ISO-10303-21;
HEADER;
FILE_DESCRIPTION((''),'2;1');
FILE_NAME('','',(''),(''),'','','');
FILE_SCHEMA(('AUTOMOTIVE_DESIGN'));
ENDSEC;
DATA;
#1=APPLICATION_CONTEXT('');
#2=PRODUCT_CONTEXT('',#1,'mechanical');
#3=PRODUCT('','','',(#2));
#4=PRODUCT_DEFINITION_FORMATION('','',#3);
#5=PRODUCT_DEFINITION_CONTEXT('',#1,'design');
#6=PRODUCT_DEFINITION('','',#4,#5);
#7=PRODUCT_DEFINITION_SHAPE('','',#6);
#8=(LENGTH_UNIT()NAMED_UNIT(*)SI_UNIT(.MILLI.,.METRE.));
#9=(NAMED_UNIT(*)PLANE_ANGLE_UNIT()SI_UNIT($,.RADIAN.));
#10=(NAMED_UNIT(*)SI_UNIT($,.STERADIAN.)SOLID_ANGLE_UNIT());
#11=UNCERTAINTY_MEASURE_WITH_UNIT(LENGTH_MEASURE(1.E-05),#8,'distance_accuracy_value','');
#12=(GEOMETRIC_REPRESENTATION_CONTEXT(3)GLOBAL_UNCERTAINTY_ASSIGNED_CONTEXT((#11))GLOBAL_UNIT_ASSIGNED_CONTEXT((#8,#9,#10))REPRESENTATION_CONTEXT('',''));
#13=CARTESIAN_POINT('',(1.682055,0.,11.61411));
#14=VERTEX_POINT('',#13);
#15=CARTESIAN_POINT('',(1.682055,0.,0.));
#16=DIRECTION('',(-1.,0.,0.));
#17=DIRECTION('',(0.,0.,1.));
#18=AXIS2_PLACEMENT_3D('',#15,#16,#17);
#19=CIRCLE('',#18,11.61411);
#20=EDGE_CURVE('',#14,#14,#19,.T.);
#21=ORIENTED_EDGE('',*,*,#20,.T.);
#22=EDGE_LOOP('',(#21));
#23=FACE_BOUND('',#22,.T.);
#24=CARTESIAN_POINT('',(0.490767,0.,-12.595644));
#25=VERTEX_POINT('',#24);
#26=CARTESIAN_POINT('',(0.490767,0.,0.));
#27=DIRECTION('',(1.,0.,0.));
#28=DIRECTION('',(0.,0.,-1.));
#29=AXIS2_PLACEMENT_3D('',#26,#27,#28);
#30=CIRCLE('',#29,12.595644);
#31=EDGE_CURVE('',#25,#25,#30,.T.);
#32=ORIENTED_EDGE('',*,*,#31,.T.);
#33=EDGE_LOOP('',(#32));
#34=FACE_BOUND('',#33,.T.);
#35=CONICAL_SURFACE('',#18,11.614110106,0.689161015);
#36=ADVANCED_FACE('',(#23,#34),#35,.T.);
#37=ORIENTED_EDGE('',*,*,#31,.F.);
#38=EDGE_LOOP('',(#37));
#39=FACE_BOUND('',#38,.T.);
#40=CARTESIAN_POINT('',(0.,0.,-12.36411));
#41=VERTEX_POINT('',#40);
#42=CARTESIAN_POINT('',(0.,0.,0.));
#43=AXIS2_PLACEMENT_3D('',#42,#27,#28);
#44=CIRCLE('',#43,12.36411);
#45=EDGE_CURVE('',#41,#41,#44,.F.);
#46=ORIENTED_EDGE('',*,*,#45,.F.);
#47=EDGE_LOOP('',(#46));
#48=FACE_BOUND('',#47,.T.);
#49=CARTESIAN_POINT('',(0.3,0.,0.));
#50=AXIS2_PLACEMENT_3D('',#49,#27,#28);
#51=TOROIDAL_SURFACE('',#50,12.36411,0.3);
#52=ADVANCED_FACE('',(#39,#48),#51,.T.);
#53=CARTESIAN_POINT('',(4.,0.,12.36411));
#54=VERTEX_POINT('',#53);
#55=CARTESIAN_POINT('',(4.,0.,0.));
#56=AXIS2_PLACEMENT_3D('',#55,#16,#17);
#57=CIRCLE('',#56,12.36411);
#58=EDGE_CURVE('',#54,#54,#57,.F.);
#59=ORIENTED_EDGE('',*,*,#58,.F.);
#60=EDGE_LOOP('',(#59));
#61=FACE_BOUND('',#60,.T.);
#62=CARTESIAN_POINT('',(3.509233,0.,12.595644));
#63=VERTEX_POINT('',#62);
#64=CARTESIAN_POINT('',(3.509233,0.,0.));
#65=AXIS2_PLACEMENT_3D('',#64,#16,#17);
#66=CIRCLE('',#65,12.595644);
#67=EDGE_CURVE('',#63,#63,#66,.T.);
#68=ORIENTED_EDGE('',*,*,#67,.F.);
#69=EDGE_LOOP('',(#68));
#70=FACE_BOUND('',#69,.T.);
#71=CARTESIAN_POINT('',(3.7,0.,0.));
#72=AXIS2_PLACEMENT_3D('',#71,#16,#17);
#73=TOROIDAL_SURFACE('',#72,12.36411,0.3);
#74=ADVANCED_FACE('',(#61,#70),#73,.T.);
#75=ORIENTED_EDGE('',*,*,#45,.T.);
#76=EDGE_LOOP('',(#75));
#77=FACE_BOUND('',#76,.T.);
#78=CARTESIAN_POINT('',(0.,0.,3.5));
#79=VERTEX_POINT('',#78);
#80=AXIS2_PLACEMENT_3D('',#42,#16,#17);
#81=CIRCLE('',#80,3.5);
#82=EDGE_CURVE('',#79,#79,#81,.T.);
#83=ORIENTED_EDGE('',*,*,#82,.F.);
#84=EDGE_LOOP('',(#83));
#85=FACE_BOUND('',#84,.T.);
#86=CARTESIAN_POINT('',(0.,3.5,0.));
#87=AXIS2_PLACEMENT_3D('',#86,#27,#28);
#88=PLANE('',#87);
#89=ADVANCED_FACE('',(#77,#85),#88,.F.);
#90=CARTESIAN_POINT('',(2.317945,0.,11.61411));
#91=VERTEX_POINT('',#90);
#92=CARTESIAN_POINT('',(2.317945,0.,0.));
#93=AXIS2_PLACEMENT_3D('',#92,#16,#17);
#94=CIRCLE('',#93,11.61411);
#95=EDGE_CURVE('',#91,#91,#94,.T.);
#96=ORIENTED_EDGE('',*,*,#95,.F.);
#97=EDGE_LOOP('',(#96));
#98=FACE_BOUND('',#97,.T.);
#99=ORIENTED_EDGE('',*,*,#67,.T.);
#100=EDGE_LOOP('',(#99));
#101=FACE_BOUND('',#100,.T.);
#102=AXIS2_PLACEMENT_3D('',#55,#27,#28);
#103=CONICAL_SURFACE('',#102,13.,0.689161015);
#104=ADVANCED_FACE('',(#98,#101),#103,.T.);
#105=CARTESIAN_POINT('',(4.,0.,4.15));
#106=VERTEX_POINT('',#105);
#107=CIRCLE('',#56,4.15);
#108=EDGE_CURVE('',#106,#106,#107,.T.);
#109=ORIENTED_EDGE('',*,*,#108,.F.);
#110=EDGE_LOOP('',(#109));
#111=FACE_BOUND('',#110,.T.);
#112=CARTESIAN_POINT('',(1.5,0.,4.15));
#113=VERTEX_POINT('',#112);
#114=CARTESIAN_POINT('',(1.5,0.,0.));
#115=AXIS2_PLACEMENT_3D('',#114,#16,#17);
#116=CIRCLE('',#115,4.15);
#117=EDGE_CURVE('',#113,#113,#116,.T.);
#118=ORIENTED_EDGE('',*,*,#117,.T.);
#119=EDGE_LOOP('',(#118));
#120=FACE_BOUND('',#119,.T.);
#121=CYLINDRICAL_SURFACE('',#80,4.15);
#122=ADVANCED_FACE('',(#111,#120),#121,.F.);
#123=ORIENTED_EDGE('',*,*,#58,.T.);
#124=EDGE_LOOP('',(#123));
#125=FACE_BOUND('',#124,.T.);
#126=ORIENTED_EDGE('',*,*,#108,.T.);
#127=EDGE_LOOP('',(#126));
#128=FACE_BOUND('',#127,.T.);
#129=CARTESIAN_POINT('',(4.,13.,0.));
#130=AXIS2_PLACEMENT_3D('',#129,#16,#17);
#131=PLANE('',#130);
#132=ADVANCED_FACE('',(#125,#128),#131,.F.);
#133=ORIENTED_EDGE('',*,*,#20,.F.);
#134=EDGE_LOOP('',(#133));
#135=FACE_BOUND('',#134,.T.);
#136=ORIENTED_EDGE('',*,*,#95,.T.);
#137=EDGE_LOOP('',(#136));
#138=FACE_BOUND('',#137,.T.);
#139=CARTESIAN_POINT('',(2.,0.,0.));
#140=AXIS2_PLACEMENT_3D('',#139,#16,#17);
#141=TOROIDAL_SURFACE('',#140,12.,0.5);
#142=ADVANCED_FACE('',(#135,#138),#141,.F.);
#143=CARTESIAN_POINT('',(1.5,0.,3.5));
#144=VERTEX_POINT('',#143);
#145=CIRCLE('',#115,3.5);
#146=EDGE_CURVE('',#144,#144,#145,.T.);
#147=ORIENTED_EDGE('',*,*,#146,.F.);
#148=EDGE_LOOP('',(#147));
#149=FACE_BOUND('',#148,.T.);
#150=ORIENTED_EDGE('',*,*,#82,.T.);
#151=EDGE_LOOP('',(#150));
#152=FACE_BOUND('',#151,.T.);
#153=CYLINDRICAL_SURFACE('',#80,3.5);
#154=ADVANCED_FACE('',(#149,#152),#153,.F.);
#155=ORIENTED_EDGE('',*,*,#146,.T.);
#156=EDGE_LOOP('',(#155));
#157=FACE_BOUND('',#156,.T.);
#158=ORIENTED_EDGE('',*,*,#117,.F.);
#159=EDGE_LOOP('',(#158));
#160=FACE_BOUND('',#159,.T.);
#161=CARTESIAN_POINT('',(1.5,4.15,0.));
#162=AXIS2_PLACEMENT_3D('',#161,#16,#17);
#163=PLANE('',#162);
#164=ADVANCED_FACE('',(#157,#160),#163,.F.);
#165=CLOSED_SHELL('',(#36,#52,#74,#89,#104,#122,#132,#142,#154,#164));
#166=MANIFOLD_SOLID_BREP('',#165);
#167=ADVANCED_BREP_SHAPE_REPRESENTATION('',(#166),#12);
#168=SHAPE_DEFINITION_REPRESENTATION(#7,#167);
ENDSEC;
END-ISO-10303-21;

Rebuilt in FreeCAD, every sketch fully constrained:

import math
import FreeCAD as App
import Part
import Sketcher
from FreeCAD import Vector
Q = App.Units.Quantity


def edges_at(feature, points):
    """Names of the edges that pass closest to the given points."""
    edges = feature.Shape.Edges
    near = lambda p: min(range(len(edges)), key=lambda i: edges[i].distToShape(Part.Vertex(*p))[0])
    return sorted({f"Edge{near(p) + 1}" for p in points})

doc = App.newDocument("Part")
params = doc.addObject("Spreadsheet::Sheet", "Params")
for row, (alias, value) in enumerate([
    ("sketch1_radius", "0.5 mm"),
    ("sketch1_width", "1.5 mm"),
    ("sketch1_width2", "2.5 mm"),
    ("sketch1_height", "9.5 mm"),
    ("sketch1_height2", "0.65 mm"),
    ("revolution_angle", "360 deg"),
    ("fillet_radius", "0.3 mm"),
], start=1):
    params.set(f"A{row}", alias)
    params.set(f"B{row}", "=" + value)
    params.setAlias(f"B{row}", alias)

body = doc.addObject("PartDesign::Body", "Body")

# Sketch on XY plane
sketch1 = body.newObject("Sketcher::SketchObject", "Sketch")
sketch1.AttachmentSupport = (doc.getObject("XY_Plane"), [""])
sketch1.MapMode = "FlatFace"
sketch1.addGeometry(Part.LineSegment(Vector(0, 13, 0), Vector(0, 3.5, 0)), False)
sketch1.addGeometry(Part.LineSegment(Vector(0, 3.5, 0), Vector(1.5, 3.5, 0)), False)
sketch1.addGeometry(Part.LineSegment(Vector(1.5, 3.5, 0), Vector(1.5, 4.15, 0)), False)
sketch1.addGeometry(Part.LineSegment(Vector(1.5, 4.15, 0), Vector(4, 4.15, 0)), False)
sketch1.addGeometry(Part.LineSegment(Vector(4, 4.15, 0), Vector(4, 13, 0)), False)
sketch1.addGeometry(Part.LineSegment(Vector(4, 13, 0), Vector(2.317945, 11.61411, 0)), False)
sketch1.addGeometry(Part.ArcOfCircle(Part.Circle(Vector(2, 12, 0), Vector(0, 0, 1), 0.5), math.radians(-129.486018), math.radians(-50.513982)), False)
sketch1.addGeometry(Part.LineSegment(Vector(1.682055, 11.61411, 0), Vector(0, 13, 0)), False)
sketch1.addConstraint(Sketcher.Constraint("Coincident", 0, 2, 1, 1))
sketch1.addConstraint(Sketcher.Constraint("Coincident", 1, 2, 2, 1))
sketch1.addConstraint(Sketcher.Constraint("Coincident", 2, 2, 3, 1))
sketch1.addConstraint(Sketcher.Constraint("Coincident", 3, 2, 4, 1))
sketch1.addConstraint(Sketcher.Constraint("Coincident", 4, 2, 5, 1))
sketch1.addConstraint(Sketcher.Constraint("Tangent", 5, 2, 6, 2))
sketch1.addConstraint(Sketcher.Constraint("Tangent", 6, 1, 7, 1))
sketch1.addConstraint(Sketcher.Constraint("Coincident", 7, 2, 0, 1))
sketch1.addConstraint(Sketcher.Constraint("Vertical", 0))
sketch1.addConstraint(Sketcher.Constraint("Horizontal", 1))
sketch1.addConstraint(Sketcher.Constraint("Vertical", 2))
sketch1.addConstraint(Sketcher.Constraint("Horizontal", 3))
sketch1.addConstraint(Sketcher.Constraint("Vertical", 4))
sketch1.addConstraint(Sketcher.Constraint("PointOnObject", 0, 2, -2))
sketch1.addConstraint(Sketcher.Constraint("Horizontal", 5, 2, 6, 1))
sketch1.addConstraint(Sketcher.Constraint("Horizontal", 4, 2, 7, 2))
sketch1.addConstraint(Sketcher.Constraint("Radius", 6, Q("0.5 mm")))
sketch1.addConstraint(Sketcher.Constraint("DistanceX", 1, 1, 1, 2, Q("1.5 mm")))
sketch1.addConstraint(Sketcher.Constraint("DistanceX", 3, 1, 3, 2, Q("2.5 mm")))
sketch1.addConstraint(Sketcher.Constraint("DistanceY", 0, 2, 0, 1, Q("9.5 mm")))
sketch1.addConstraint(Sketcher.Constraint("DistanceY", -1, 1, 6, 3, Q("12 mm")))
sketch1.addConstraint(Sketcher.Constraint("DistanceY", -1, 1, 4, 2, Q("13 mm")))
sketch1.addConstraint(Sketcher.Constraint("DistanceY", 2, 1, 2, 2, Q("0.65 mm")))
sketch1.setExpression("Constraints[16]", "Params.sketch1_radius")
sketch1.setExpression("Constraints[17]", "Params.sketch1_width")
sketch1.setExpression("Constraints[18]", "Params.sketch1_width2")
sketch1.setExpression("Constraints[19]", "Params.sketch1_height")
sketch1.setExpression("Constraints[22]", "Params.sketch1_height2")
revolution = body.newObject("PartDesign::Revolution", "Revolution")
revolution.Profile = sketch1
revolution.ReferenceAxis = (sketch1, ["H_Axis"])
revolution.setExpression("Angle", "Params.revolution_angle")
doc.recompute()

fillet = body.newObject("PartDesign::Fillet", "Fillet")
fillet.Base = (revolution, edges_at(revolution, [(0, 0, -13), (4, 0, -13)]))
fillet.setExpression("Radius", "Params.fillet_radius")

doc.recompute()
